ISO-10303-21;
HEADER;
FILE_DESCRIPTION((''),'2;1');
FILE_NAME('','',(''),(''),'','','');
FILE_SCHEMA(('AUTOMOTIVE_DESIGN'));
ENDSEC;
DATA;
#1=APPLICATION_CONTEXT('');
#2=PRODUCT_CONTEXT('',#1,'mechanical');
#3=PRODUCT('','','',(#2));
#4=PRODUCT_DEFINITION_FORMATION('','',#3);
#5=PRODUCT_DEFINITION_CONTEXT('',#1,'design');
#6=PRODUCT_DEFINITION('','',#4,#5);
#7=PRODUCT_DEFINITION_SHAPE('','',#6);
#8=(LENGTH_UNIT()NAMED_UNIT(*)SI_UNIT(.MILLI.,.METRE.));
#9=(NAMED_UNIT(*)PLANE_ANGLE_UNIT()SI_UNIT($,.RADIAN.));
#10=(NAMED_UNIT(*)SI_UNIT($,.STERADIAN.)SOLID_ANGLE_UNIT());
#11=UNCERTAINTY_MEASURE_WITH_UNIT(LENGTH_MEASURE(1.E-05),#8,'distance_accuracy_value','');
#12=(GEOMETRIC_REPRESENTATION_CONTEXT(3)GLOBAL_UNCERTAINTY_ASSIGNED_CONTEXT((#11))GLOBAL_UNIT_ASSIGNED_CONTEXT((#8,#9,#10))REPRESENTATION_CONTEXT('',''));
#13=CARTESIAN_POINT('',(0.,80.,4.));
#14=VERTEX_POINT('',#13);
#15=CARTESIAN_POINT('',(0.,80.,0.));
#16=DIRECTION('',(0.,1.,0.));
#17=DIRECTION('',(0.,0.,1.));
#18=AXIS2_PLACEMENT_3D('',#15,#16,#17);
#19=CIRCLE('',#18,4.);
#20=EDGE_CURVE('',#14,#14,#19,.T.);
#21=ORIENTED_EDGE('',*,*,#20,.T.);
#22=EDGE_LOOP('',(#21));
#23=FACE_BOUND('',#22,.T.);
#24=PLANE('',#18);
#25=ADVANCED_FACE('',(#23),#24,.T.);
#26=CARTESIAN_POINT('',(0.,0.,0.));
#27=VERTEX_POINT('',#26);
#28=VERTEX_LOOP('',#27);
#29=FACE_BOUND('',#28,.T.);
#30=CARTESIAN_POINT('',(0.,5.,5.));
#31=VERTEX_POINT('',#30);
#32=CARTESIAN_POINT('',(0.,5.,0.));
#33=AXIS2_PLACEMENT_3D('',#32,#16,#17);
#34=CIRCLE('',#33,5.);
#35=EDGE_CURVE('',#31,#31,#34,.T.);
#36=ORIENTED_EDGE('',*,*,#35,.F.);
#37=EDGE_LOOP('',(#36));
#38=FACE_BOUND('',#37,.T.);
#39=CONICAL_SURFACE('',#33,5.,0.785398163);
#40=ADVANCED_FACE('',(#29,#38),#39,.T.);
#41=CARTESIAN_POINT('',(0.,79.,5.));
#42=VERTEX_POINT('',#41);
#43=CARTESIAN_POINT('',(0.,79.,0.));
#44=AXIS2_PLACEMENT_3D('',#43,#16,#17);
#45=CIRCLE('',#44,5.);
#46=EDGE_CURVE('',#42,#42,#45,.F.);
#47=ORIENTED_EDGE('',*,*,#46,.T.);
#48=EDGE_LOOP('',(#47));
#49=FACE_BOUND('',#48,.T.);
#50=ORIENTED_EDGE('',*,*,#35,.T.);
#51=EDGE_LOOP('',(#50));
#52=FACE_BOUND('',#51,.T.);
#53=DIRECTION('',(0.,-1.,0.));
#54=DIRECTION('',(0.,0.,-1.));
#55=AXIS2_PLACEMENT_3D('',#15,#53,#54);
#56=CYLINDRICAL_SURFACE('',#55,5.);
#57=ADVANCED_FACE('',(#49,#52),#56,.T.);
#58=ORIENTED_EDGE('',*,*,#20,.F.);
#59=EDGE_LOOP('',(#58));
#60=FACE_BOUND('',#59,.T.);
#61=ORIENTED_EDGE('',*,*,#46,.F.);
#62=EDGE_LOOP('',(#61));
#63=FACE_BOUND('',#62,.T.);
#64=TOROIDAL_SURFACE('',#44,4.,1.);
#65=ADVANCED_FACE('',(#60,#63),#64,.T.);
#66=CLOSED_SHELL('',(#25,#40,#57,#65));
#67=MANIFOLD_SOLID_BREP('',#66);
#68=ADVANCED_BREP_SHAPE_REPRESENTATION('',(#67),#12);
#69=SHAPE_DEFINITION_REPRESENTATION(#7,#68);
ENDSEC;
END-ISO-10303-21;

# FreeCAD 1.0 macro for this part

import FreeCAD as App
import Part
import Sketcher

V = App.Vector


def edges_at(feature, points):
    """Names of the edges that pass closest to the given points."""
    edges = feature.Shape.Edges
    near = lambda p: min(range(len(edges)), key=lambda i: edges[i].distToShape(Part.Vertex(*p))[0])
    return sorted({f"Edge{near(p) + 1}" for p in points})

doc = App.newDocument("Part")
body = doc.addObject("PartDesign::Body", "Body")

# Sketch on XZ plane
sketch1 = body.newObject("Sketcher::SketchObject", "Sketch")
sketch1.AttachmentSupport = (doc.getObject("XZ_Plane"), [""])
sketch1.MapMode = "FlatFace"
sketch1.addGeometry(Part.Circle(V(0, 0, 0), V(0, 0, 1), 5), False)
sketch1.addConstraint([
    Sketcher.Constraint("Coincident", 0, 3, -1, 1),
    Sketcher.Constraint("Diameter", 0, 10.0),
])
pad1 = body.newObject("PartDesign::Pad", "Pad")
pad1.Profile = sketch1
pad1.Length = 80
pad1.Reversed = True
doc.recompute()

chamfer = body.newObject("PartDesign::Chamfer", "Chamfer")
chamfer.Base = (pad1, edges_at(pad1, [(0, 0, -5)]))
chamfer.Size = 5
doc.recompute()

fillet = body.newObject("PartDesign::Fillet", "Fillet")
fillet.Base = (chamfer, edges_at(chamfer, [(0, 80, -5)]))
fillet.Radius = 1

doc.recompute()
